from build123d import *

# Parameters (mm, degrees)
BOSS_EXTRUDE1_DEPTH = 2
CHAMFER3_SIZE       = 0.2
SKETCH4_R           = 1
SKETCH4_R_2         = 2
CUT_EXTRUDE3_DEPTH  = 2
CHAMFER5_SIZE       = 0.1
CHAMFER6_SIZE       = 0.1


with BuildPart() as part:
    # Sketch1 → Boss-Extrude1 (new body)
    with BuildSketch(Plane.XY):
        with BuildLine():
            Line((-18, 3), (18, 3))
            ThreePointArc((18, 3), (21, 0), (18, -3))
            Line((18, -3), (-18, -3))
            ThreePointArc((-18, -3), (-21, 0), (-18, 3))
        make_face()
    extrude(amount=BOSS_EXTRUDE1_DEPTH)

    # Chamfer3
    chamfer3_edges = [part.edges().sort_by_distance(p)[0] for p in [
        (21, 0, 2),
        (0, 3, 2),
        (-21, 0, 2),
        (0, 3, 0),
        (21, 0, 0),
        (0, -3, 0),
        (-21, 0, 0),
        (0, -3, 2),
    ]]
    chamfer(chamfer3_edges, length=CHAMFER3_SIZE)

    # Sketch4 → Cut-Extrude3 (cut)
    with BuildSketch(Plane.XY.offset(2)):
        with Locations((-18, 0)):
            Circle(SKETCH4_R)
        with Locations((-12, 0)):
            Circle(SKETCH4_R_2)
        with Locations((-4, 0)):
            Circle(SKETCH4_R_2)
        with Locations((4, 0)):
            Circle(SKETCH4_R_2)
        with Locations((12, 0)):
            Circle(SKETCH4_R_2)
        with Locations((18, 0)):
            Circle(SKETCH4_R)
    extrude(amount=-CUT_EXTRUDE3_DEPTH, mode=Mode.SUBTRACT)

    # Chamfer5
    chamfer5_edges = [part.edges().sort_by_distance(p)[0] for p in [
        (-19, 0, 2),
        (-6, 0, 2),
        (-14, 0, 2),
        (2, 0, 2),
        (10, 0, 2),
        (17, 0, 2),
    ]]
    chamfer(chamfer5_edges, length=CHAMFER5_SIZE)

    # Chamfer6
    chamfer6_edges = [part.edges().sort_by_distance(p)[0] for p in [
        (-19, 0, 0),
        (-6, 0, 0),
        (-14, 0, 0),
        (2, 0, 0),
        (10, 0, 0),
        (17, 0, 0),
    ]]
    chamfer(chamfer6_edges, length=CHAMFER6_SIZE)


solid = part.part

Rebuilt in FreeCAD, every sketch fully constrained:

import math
import FreeCAD as App
import Part
import Sketcher

V = App.Vector
Q = App.Units.Quantity


def edges_at(feature, points):
    """Names of the edges that pass closest to the given points."""
    edges = feature.Shape.Edges
    near = lambda p: min(range(len(edges)), key=lambda i: edges[i].distToShape(Part.Vertex(*p))[0])
    return sorted({f"Edge{near(p) + 1}" for p in points})

doc = App.newDocument("Part")
body = doc.addObject("PartDesign::Body", "Body")

# Sketch on XY plane
sketch1 = doc.addObject("Sketcher::SketchObject", "Sketch")
body.addObject(sketch1)
sketch1.AttachmentSupport = (doc.XY_Plane, [""])
sketch1.MapMode = "FlatFace"
sketch1.addGeometry([
    Part.LineSegment(V(18, 3, 0), V(-18, 3, 0)),
    Part.ArcOfCircle(Part.Circle(V(-18, 0, 0), V(0, 0, 1), 3), math.radians(90), math.radians(270)),
    Part.LineSegment(V(-18, -3, 0), V(18, -3, 0)),
    Part.ArcOfCircle(Part.Circle(V(18, 0, 0), V(0, 0, 1), 3), math.radians(-90), math.radians(90)),
], False)
sketch1.addConstraint([
    Sketcher.Constraint("Tangent", 0, 2, 1, 1),
    Sketcher.Constraint("Tangent", 1, 2, 2, 1),
    Sketcher.Constraint("Tangent", 2, 2, 3, 1),
    Sketcher.Constraint("Tangent", 3, 2, 0, 1),
    Sketcher.Constraint("Horizontal", 0),
    Sketcher.Constraint("Horizontal", 2),
    Sketcher.Constraint("Symmetric", 1, 3, 3, 3, -1, 1),
    Sketcher.Constraint("Radius", 1, Q("3 mm")),
    Sketcher.Constraint("DistanceX", 0, 2, 0, 1, Q("36 mm")),
])
pad1 = doc.addObject("PartDesign::Pad", "Pad")
body.addObject(pad1)
pad1.Profile = sketch1
pad1.Length = 2
doc.recompute()

chamfer = doc.addObject("PartDesign::Chamfer", "Chamfer")
body.addObject(chamfer)
chamfer.Base = (pad1, edges_at(pad1, [
    (21, 0, 2),
    (0, 3, 2),
    (-21, 0, 2),
    (0, 3, 0),
    (21, 0, 0),
    (0, -3, 0),
    (-21, 0, 0),
    (0, -3, 2),
]))
chamfer.Size = 0.2

# Sketch on XY plane
sketch2 = doc.addObject("Sketcher::SketchObject", "Sketch001")
body.addObject(sketch2)
sketch2.AttachmentSupport = (doc.XY_Plane, [""])
sketch2.MapMode = "FlatFace"
sketch2.AttachmentOffset = App.Placement(V(0, 0, 2), App.Rotation())
sketch2.addGeometry([
    Part.Circle(V(-18, 0, 0), V(0, 0, 1), 1),  # 0
    Part.Circle(V(-12, 0, 0), V(0, 0, 1), 2),  # 1
    Part.Circle(V(-4, 0, 0), V(0, 0, 1), 2),  # 2
    Part.Circle(V(4, 0, 0), V(0, 0, 1), 2),  # 3
    Part.Circle(V(12, 0, 0), V(0, 0, 1), 2),  # 4
    Part.Circle(V(18, 0, 0), V(0, 0, 1), 1),  # 5
], False)
sketch2.addConstraint([
    Sketcher.Constraint("Equal", 1, 2),
    Sketcher.Constraint("Equal", 2, 3),
    Sketcher.Constraint("Equal", 3, 4),
    Sketcher.Constraint("Equal", 0, 5),
    Sketcher.Constraint("Symmetric", 2, 3, 3, 3, -1, 1),
    Sketcher.Constraint("Symmetric", 1, 3, 4, 3, -1, 1),
    Sketcher.Constraint("Symmetric", 0, 3, 5, 3, -1, 1),
    Sketcher.Constraint("PointOnObject", 0, 3, -1),
    Sketcher.Constraint("PointOnObject", 1, 3, -1),
    Sketcher.Constraint("PointOnObject", 2, 3, -1),
    Sketcher.Constraint("Diameter", 0, Q("2 mm")),
    Sketcher.Constraint("Diameter", 1, Q("4 mm")),
    Sketcher.Constraint("DistanceX", 0, 3, -1, 1, Q("18 mm")),
    Sketcher.Constraint("DistanceX", 1, 3, -1, 1, Q("12 mm")),
    Sketcher.Constraint("DistanceX", 2, 3, -1, 1, Q("4 mm")),
])
pocket1 = doc.addObject("PartDesign::Pocket", "Pocket")
body.addObject(pocket1)
pocket1.Profile = sketch2
pocket1.Length = 2
doc.recompute()

chamfer2 = doc.addObject("PartDesign::Chamfer", "Chamfer001")
body.addObject(chamfer2)
chamfer2.Base = (pocket1, edges_at(pocket1, [
    (-19, 0, 2),
    (-6, 0, 2),
    (-14, 0, 2),
    (2, 0, 2),
    (10, 0, 2),
    (17, 0, 2),
]))
chamfer2.Size = 0.1
doc.recompute()

chamfer3 = doc.addObject("PartDesign::Chamfer", "Chamfer002")
body.addObject(chamfer3)
chamfer3.Base = (chamfer2, edges_at(chamfer2, [
    (-19, 0, 0),
    (-6, 0, 0),
    (-14, 0, 0),
    (2, 0, 0),
    (10, 0, 0),
    (17, 0, 0),
]))
chamfer3.Size = 0.1

doc.recompute()
